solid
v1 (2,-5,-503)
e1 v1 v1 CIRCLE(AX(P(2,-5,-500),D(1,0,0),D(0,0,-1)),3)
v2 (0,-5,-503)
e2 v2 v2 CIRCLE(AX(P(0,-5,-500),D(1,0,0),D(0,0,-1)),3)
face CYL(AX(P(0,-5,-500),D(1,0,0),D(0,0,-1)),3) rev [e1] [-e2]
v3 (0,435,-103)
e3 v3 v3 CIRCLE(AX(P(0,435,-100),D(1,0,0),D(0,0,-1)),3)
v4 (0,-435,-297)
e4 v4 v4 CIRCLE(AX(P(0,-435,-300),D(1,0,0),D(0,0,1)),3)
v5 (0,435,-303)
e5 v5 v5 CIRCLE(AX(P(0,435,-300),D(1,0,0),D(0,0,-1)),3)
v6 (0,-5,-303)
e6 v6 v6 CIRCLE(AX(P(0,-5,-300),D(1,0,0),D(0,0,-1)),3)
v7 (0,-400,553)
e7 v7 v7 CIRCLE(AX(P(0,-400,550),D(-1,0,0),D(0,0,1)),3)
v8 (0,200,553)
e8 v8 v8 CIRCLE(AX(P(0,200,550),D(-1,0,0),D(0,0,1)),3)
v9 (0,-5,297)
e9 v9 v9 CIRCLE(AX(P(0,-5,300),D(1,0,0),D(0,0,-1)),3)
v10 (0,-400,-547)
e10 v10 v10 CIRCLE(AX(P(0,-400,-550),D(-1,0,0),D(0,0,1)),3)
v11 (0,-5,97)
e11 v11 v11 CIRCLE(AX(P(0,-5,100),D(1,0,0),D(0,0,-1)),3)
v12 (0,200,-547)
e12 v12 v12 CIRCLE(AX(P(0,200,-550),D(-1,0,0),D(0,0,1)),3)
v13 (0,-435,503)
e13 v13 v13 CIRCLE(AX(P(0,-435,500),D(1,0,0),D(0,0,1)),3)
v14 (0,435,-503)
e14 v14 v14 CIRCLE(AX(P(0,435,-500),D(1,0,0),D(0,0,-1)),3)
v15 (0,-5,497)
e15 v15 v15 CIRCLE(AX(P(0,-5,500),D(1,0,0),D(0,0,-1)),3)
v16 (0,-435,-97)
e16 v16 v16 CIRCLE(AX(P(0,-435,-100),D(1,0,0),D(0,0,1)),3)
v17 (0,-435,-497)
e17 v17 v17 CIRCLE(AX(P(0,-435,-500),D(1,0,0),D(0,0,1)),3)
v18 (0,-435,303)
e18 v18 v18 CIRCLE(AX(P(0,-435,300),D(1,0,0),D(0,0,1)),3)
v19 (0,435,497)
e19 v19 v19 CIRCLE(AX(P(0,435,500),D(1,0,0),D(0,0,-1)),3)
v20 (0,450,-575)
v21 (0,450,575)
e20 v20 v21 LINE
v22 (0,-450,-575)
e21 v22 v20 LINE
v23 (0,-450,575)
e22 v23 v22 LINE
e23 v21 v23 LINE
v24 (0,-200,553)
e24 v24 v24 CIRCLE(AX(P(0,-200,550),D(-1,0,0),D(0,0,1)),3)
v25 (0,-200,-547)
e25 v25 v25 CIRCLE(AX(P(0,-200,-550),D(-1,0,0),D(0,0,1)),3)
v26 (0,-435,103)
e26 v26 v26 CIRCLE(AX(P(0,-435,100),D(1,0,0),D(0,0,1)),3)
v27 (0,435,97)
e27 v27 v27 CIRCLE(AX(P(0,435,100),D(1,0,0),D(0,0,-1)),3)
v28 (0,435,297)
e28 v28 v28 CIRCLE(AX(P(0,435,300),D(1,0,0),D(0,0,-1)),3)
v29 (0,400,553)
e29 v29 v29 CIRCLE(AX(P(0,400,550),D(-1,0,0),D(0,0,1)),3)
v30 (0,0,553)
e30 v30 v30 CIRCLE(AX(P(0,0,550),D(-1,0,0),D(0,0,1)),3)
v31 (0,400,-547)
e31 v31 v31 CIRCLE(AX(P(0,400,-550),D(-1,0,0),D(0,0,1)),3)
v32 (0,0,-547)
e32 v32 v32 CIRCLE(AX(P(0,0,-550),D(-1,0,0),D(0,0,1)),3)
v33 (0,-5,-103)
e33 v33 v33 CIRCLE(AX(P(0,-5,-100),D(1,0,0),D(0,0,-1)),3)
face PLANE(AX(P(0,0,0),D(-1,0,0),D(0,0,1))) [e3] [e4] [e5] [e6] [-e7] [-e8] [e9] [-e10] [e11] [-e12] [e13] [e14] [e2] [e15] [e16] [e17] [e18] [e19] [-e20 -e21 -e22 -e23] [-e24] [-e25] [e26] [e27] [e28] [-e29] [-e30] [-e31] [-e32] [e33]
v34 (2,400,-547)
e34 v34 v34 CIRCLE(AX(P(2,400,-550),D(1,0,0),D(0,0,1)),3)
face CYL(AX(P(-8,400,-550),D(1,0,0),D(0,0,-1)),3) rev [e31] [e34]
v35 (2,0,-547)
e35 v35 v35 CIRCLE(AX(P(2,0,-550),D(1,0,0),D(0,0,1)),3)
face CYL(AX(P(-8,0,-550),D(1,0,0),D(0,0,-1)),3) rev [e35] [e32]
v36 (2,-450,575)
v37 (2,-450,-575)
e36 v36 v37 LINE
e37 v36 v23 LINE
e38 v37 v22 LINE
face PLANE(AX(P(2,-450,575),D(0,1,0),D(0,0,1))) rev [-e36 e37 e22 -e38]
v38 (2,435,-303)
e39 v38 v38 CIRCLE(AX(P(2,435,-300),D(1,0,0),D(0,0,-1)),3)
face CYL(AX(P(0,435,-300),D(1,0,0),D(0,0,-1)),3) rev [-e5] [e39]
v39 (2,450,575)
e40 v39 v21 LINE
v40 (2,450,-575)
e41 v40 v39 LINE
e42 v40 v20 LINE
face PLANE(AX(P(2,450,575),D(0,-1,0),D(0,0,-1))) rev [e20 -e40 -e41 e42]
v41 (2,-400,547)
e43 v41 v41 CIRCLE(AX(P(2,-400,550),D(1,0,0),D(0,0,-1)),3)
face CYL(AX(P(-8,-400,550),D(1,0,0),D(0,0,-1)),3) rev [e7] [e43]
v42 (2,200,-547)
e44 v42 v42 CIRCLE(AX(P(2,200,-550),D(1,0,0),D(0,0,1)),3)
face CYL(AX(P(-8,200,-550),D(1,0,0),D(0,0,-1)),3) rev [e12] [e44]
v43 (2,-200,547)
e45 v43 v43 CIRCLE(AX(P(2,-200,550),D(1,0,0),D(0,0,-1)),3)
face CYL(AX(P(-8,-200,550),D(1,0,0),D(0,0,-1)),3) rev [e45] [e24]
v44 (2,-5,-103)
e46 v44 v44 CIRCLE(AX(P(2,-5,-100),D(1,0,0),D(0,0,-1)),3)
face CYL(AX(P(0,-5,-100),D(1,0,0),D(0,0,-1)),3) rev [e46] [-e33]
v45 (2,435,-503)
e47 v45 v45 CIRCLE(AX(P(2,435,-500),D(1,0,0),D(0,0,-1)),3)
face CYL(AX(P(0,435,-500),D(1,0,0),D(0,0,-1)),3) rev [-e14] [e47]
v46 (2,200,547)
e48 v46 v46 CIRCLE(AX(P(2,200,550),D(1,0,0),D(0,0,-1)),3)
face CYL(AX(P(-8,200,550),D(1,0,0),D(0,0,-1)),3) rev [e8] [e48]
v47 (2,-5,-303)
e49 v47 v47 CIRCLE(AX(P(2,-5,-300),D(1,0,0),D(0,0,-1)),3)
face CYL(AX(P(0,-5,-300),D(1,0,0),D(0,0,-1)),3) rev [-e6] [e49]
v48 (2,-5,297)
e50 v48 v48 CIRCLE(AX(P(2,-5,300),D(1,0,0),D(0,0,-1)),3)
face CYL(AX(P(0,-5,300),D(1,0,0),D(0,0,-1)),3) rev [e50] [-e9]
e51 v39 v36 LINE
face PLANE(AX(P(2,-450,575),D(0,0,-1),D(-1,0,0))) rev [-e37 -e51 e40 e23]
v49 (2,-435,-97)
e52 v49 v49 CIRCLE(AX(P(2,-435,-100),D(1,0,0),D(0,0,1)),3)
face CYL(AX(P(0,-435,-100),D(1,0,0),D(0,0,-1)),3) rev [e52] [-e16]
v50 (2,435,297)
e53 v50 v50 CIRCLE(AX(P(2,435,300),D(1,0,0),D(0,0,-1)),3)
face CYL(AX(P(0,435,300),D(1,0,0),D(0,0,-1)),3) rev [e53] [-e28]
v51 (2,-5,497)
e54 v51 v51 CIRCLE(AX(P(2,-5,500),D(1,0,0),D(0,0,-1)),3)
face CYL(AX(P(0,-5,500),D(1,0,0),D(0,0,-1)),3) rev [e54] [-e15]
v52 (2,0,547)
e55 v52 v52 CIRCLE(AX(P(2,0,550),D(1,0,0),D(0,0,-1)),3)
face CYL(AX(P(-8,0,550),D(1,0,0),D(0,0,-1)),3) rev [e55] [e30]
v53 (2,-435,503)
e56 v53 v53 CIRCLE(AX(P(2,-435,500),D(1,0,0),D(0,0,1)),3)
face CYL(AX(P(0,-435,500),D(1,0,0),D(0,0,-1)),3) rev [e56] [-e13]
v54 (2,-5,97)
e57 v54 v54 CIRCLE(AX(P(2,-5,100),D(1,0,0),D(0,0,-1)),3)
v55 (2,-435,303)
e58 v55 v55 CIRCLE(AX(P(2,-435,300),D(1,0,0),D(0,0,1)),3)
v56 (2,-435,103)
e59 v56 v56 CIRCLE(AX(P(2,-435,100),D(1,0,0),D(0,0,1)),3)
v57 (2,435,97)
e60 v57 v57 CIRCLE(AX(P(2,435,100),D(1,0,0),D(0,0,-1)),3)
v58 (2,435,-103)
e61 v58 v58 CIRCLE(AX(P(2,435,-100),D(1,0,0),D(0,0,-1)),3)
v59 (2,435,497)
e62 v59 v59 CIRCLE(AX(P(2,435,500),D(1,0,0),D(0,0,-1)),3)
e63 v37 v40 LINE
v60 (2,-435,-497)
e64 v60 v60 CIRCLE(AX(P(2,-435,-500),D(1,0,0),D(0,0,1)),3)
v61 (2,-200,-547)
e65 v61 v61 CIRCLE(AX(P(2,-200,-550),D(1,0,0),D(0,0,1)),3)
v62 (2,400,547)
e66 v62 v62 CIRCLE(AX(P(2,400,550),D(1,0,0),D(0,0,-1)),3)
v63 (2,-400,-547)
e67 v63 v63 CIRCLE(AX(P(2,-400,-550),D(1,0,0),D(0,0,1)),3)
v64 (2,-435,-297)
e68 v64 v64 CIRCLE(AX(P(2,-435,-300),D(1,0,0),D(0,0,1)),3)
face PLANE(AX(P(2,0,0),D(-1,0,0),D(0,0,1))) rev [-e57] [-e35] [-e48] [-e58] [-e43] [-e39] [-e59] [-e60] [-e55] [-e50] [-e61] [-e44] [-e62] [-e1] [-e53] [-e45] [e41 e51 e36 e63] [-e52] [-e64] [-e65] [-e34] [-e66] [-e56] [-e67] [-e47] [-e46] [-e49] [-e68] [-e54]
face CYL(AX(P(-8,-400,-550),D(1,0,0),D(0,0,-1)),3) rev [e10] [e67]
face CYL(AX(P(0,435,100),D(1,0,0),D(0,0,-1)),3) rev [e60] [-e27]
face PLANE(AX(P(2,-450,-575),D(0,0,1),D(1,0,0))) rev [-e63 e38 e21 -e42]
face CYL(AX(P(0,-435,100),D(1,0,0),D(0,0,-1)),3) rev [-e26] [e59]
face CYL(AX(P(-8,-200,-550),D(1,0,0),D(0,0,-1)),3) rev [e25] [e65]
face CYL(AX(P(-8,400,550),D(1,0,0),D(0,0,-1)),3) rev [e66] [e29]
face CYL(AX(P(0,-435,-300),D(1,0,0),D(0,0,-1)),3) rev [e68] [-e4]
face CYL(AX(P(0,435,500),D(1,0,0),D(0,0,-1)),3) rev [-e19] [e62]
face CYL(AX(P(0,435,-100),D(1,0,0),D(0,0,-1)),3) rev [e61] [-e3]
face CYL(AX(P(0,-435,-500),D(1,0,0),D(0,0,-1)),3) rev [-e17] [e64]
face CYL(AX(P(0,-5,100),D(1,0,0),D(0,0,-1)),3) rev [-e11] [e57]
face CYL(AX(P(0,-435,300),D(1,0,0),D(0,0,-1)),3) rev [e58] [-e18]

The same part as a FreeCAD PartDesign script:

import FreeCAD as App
import Part
import Sketcher
from FreeCAD import Vector
Q = App.Units.Quantity

doc = App.newDocument("Part")
body = doc.addObject("PartDesign::Body", "Body")

# Sketch on YZ plane
sketch1 = body.newObject("Sketcher::SketchObject", "Sketch")
sketch1.AttachmentSupport = (doc.getObject("YZ_Plane"), [""])
sketch1.MapMode = "FlatFace"
sketch1.addGeometry(Part.LineSegment(Vector(450, 575, 0), Vector(-450, 575, 0)), False)
sketch1.addGeometry(Part.LineSegment(Vector(-450, 575, 0), Vector(-450, -575, 0)), False)
sketch1.addGeometry(Part.LineSegment(Vector(-450, -575, 0), Vector(450, -575, 0)), False)
sketch1.addGeometry(Part.LineSegment(Vector(450, -575, 0), Vector(450, 575, 0)), False)
sketch1.addConstraint(Sketcher.Constraint("Coincident", 0, 2, 1, 1))
sketch1.addConstraint(Sketcher.Constraint("Coincident", 1, 2, 2, 1))
sketch1.addConstraint(Sketcher.Constraint("Coincident", 2, 2, 3, 1))
sketch1.addConstraint(Sketcher.Constraint("Coincident", 3, 2, 0, 1))
sketch1.addConstraint(Sketcher.Constraint("Horizontal", 0))
sketch1.addConstraint(Sketcher.Constraint("Vertical", 1))
sketch1.addConstraint(Sketcher.Constraint("Horizontal", 2))
sketch1.addConstraint(Sketcher.Constraint("Vertical", 3))
sketch1.addConstraint(Sketcher.Constraint("Symmetric", 0, 2, 2, 2, -1, 1))
sketch1.addConstraint(Sketcher.Constraint("DistanceX", 0, 2, 0, 1, Q("900 mm")))
sketch1.addConstraint(Sketcher.Constraint("DistanceY", 1, 2, 1, 1, Q("1150 mm")))
pad1 = body.newObject("PartDesign::Pad", "Pad")
pad1.Profile = sketch1
pad1.Length = 2

# Sketch on YZ plane
sketch2 = body.newObject("Sketcher::SketchObject", "Sketch001")
sketch2.AttachmentSupport = (doc.getObject("YZ_Plane"), [""])
sketch2.MapMode = "FlatFace"
sketch2.AttachmentOffset = App.Placement(Vector(0, 0, 2), App.Rotation())
sketch2.addGeometry(Part.Circle(Vector(435, 500, 0), Vector(0, 0, 1), 3), False)
sketch2.addGeometry(Part.Circle(Vector(435, 300, 0), Vector(0, 0, 1), 3), False)
sketch2.addGeometry(Part.Circle(Vector(435, 100, 0), Vector(0, 0, 1), 3), False)
sketch2.addGeometry(Part.Circle(Vector(435, -100, 0), Vector(0, 0, 1), 3), False)
sketch2.addGeometry(Part.Circle(Vector(435, -300, 0), Vector(0, 0, 1), 3), False)
sketch2.addGeometry(Part.Circle(Vector(435, -500, 0), Vector(0, 0, 1), 3), False)
sketch2.addGeometry(Part.Circle(Vector(-435, -500, 0), Vector(0, 0, 1), 3), False)
sketch2.addGeometry(Part.Circle(Vector(-435, -300, 0), Vector(0, 0, 1), 3), False)
sketch2.addGeometry(Part.Circle(Vector(-435, -100, 0), Vector(0, 0, 1), 3), False)
sketch2.addGeometry(Part.Circle(Vector(-435, 100, 0), Vector(0, 0, 1), 3), False)
sketch2.addGeometry(Part.Circle(Vector(-435, 300, 0), Vector(0, 0, 1), 3), False)
sketch2.addGeometry(Part.Circle(Vector(-435, 500, 0), Vector(0, 0, 1), 3), False)
sketch2.addGeometry(Part.Circle(Vector(-5, -500, 0), Vector(0, 0, 1), 3), False)
sketch2.addGeometry(Part.Circle(Vector(-5, -100, 0), Vector(0, 0, 1), 3), False)
sketch2.addGeometry(Part.Circle(Vector(-5, -300, 0), Vector(0, 0, 1), 3), False)
sketch2.addGeometry(Part.Circle(Vector(-5, 100, 0), Vector(0, 0, 1), 3), False)
sketch2.addGeometry(Part.Circle(Vector(-5, 300, 0), Vector(0, 0, 1), 3), False)
sketch2.addGeometry(Part.Circle(Vector(-5, 500, 0), Vector(0, 0, 1), 3), False)
sketch2.addConstraint(Sketcher.Constraint("Equal", 0, 1))
sketch2.addConstraint(Sketcher.Constraint("Equal", 1, 2))
sketch2.addConstraint(Sketcher.Constraint("Equal", 2, 3))
sketch2.addConstraint(Sketcher.Constraint("Equal", 3, 4))
sketch2.addConstraint(Sketcher.Constraint("Equal", 4, 5))
sketch2.addConstraint(Sketcher.Constraint("Equal", 5, 6))
sketch2.addConstraint(Sketcher.Constraint("Equal", 6, 7))
sketch2.addConstraint(Sketcher.Constraint("Equal", 7, 8))
sketch2.addConstraint(Sketcher.Constraint("Equal", 8, 9))
sketch2.addConstraint(Sketcher.Constraint("Equal", 9, 10))
sketch2.addConstraint(Sketcher.Constraint("Equal", 10, 11))
sketch2.addConstraint(Sketcher.Constraint("Equal", 11, 12))
sketch2.addConstraint(Sketcher.Constraint("Equal", 12, 13))
sketch2.addConstraint(Sketcher.Constraint("Equal", 13, 14))
sketch2.addConstraint(Sketcher.Constraint("Equal", 14, 15))
sketch2.addConstraint(Sketcher.Constraint("Equal", 15, 16))
sketch2.addConstraint(Sketcher.Constraint("Equal", 16, 17))
sketch2.addConstraint(Sketcher.Constraint("Symmetric", 0, 3, 6, 3, -1, 1))
sketch2.addConstraint(Sketcher.Constraint("Symmetric", 1, 3, 7, 3, -1, 1))
sketch2.addConstraint(Sketcher.Constraint("Symmetric", 2, 3, 8, 3, -1, 1))
sketch2.addConstraint(Sketcher.Constraint("Symmetric", 3, 3, 9, 3, -1, 1))
sketch2.addConstraint(Sketcher.Constraint("Symmetric", 4, 3, 10, 3, -1, 1))
sketch2.addConstraint(Sketcher.Constraint("Symmetric", 5, 3, 11, 3, -1, 1))
sketch2.addConstraint(Sketcher.Constraint("Symmetric", 5, 3, 6, 3, -2))
sketch2.addConstraint(Sketcher.Constraint("Symmetric", 4, 3, 7, 3, -2))
sketch2.addConstraint(Sketcher.Constraint("Symmetric", 3, 3, 8, 3, -2))
sketch2.addConstraint(Sketcher.Constraint("Symmetric", 13, 3, 15, 3, -1))
sketch2.addConstraint(Sketcher.Constraint("Symmetric", 14, 3, 16, 3, -1))
sketch2.addConstraint(Sketcher.Constraint("Symmetric", 12, 3, 17, 3, -1))
sketch2.addConstraint(Sketcher.Constraint("Horizontal", 6, 3, 12, 3))
sketch2.addConstraint(Sketcher.Constraint("Horizontal", 8, 3, 13, 3))
sketch2.addConstraint(Sketcher.Constraint("Horizontal", 7, 3, 14, 3))
sketch2.addConstraint(Sketcher.Constraint("Vertical", 0, 3, 1, 3))
sketch2.addConstraint(Sketcher.Constraint("Vertical", 1, 3, 2, 3))
sketch2.addConstraint(Sketcher.Constraint("Vertical", 12, 3, 13, 3))
sketch2.addConstraint(Sketcher.Constraint("Vertical", 13, 3, 14, 3))
sketch2.addConstraint(Sketcher.Constraint("Diameter", 0, Q("6 mm")))
sketch2.addConstraint(Sketcher.Constraint("DistanceX", -1, 1, 0, 3, Q("435 mm")))
sketch2.addConstraint(Sketcher.Constraint("DistanceY", -1, 1, 0, 3, Q("500 mm")))
sketch2.addConstraint(Sketcher.Constraint("DistanceY", -1, 1, 1, 3, Q("300 mm")))
sketch2.addConstraint(Sketcher.Constraint("DistanceY", -1, 1, 2, 3, Q("100 mm")))
sketch2.addConstraint(Sketcher.Constraint("DistanceX", 12, 3, -1, 1, Q("5 mm")))
pocket1 = body.newObject("PartDesign::Pocket", "Pocket")
pocket1.Profile = sketch2
pocket1.Length = 2

# Sketch on YZ plane
sketch3 = body.newObject("Sketcher::SketchObject", "Sketch002")
sketch3.AttachmentSupport = (doc.getObject("YZ_Plane"), [""])
sketch3.MapMode = "FlatFace"
sketch3.AttachmentOffset = App.Placement(Vector(0, 0, 2), App.Rotation())
sketch3.addGeometry(Part.Circle(Vector(400, 550, 0), Vector(0, 0, 1), 3), False)
sketch3.addGeometry(Part.Circle(Vector(200, 550, 0), Vector(0, 0, 1), 3), False)
sketch3.addGeometry(Part.Circle(Vector(0, 550, 0), Vector(0, 0, 1), 3), False)
sketch3.addGeometry(Part.Circle(Vector(-200, 550, 0), Vector(0, 0, 1), 3), False)
sketch3.addGeometry(Part.Circle(Vector(-400, 550, 0), Vector(0, 0, 1), 3), False)
sketch3.addGeometry(Part.Circle(Vector(-400, -550, 0), Vector(0, 0, 1), 3), False)
sketch3.addGeometry(Part.Circle(Vector(-200, -550, 0), Vector(0, 0, 1), 3), False)
sketch3.addGeometry(Part.Circle(Vector(0, -550, 0), Vector(0, 0, 1), 3), False)
sketch3.addGeometry(Part.Circle(Vector(200, -550, 0), Vector(0, 0, 1), 3), False)
sketch3.addGeometry(Part.Circle(Vector(400, -550, 0), Vector(0, 0, 1), 3), False)
sketch3.addConstraint(Sketcher.Constraint("Equal", 0, 1))
sketch3.addConstraint(Sketcher.Constraint("Equal", 1, 2))
sketch3.addConstraint(Sketcher.Constraint("Equal", 2, 3))
sketch3.addConstraint(Sketcher.Constraint("Equal", 3, 4))
sketch3.addConstraint(Sketcher.Constraint("Equal", 4, 5))
sketch3.addConstraint(Sketcher.Constraint("Equal", 5, 6))
sketch3.addConstraint(Sketcher.Constraint("Equal", 6, 7))
sketch3.addConstraint(Sketcher.Constraint("Equal", 7, 8))
sketch3.addConstraint(Sketcher.Constraint("Equal", 8, 9))
sketch3.addConstraint(Sketcher.Constraint("Symmetric", 0, 3, 5, 3, -1, 1))
sketch3.addConstraint(Sketcher.Constraint("Symmetric", 1, 3, 6, 3, -1, 1))
sketch3.addConstraint(Sketcher.Constraint("Symmetric", 2, 3, 7, 3, -1, 1))
sketch3.addConstraint(Sketcher.Constraint("Symmetric", 3, 3, 8, 3, -1, 1))
sketch3.addConstraint(Sketcher.Constraint("Symmetric", 4, 3, 9, 3, -1, 1))
sketch3.addConstraint(Sketcher.Constraint("Symmetric", 1, 3, 3, 3, -2))
sketch3.addConstraint(Sketcher.Constraint("Symmetric", 0, 3, 4, 3, -2))
sketch3.addConstraint(Sketcher.Constraint("PointOnObject", 2, 3, -2))
sketch3.addConstraint(Sketcher.Constraint("Horizontal", 0, 3, 1, 3))
sketch3.addConstraint(Sketcher.Constraint("Horizontal", 1, 3, 2, 3))
sketch3.addConstraint(Sketcher.Constraint("Diameter", 0, Q("6 mm")))
sketch3.addConstraint(Sketcher.Constraint("DistanceX", -1, 1, 0, 3, Q("400 mm")))
sketch3.addConstraint(Sketcher.Constraint("DistanceY", -1, 1, 0, 3, Q("550 mm")))
sketch3.addConstraint(Sketcher.Constraint("DistanceX", -1, 1, 1, 3, Q("200 mm")))
pocket2 = body.newObject("PartDesign::Pocket", "Pocket001")
pocket2.Profile = sketch3
pocket2.Length = 10

doc.recompute()
